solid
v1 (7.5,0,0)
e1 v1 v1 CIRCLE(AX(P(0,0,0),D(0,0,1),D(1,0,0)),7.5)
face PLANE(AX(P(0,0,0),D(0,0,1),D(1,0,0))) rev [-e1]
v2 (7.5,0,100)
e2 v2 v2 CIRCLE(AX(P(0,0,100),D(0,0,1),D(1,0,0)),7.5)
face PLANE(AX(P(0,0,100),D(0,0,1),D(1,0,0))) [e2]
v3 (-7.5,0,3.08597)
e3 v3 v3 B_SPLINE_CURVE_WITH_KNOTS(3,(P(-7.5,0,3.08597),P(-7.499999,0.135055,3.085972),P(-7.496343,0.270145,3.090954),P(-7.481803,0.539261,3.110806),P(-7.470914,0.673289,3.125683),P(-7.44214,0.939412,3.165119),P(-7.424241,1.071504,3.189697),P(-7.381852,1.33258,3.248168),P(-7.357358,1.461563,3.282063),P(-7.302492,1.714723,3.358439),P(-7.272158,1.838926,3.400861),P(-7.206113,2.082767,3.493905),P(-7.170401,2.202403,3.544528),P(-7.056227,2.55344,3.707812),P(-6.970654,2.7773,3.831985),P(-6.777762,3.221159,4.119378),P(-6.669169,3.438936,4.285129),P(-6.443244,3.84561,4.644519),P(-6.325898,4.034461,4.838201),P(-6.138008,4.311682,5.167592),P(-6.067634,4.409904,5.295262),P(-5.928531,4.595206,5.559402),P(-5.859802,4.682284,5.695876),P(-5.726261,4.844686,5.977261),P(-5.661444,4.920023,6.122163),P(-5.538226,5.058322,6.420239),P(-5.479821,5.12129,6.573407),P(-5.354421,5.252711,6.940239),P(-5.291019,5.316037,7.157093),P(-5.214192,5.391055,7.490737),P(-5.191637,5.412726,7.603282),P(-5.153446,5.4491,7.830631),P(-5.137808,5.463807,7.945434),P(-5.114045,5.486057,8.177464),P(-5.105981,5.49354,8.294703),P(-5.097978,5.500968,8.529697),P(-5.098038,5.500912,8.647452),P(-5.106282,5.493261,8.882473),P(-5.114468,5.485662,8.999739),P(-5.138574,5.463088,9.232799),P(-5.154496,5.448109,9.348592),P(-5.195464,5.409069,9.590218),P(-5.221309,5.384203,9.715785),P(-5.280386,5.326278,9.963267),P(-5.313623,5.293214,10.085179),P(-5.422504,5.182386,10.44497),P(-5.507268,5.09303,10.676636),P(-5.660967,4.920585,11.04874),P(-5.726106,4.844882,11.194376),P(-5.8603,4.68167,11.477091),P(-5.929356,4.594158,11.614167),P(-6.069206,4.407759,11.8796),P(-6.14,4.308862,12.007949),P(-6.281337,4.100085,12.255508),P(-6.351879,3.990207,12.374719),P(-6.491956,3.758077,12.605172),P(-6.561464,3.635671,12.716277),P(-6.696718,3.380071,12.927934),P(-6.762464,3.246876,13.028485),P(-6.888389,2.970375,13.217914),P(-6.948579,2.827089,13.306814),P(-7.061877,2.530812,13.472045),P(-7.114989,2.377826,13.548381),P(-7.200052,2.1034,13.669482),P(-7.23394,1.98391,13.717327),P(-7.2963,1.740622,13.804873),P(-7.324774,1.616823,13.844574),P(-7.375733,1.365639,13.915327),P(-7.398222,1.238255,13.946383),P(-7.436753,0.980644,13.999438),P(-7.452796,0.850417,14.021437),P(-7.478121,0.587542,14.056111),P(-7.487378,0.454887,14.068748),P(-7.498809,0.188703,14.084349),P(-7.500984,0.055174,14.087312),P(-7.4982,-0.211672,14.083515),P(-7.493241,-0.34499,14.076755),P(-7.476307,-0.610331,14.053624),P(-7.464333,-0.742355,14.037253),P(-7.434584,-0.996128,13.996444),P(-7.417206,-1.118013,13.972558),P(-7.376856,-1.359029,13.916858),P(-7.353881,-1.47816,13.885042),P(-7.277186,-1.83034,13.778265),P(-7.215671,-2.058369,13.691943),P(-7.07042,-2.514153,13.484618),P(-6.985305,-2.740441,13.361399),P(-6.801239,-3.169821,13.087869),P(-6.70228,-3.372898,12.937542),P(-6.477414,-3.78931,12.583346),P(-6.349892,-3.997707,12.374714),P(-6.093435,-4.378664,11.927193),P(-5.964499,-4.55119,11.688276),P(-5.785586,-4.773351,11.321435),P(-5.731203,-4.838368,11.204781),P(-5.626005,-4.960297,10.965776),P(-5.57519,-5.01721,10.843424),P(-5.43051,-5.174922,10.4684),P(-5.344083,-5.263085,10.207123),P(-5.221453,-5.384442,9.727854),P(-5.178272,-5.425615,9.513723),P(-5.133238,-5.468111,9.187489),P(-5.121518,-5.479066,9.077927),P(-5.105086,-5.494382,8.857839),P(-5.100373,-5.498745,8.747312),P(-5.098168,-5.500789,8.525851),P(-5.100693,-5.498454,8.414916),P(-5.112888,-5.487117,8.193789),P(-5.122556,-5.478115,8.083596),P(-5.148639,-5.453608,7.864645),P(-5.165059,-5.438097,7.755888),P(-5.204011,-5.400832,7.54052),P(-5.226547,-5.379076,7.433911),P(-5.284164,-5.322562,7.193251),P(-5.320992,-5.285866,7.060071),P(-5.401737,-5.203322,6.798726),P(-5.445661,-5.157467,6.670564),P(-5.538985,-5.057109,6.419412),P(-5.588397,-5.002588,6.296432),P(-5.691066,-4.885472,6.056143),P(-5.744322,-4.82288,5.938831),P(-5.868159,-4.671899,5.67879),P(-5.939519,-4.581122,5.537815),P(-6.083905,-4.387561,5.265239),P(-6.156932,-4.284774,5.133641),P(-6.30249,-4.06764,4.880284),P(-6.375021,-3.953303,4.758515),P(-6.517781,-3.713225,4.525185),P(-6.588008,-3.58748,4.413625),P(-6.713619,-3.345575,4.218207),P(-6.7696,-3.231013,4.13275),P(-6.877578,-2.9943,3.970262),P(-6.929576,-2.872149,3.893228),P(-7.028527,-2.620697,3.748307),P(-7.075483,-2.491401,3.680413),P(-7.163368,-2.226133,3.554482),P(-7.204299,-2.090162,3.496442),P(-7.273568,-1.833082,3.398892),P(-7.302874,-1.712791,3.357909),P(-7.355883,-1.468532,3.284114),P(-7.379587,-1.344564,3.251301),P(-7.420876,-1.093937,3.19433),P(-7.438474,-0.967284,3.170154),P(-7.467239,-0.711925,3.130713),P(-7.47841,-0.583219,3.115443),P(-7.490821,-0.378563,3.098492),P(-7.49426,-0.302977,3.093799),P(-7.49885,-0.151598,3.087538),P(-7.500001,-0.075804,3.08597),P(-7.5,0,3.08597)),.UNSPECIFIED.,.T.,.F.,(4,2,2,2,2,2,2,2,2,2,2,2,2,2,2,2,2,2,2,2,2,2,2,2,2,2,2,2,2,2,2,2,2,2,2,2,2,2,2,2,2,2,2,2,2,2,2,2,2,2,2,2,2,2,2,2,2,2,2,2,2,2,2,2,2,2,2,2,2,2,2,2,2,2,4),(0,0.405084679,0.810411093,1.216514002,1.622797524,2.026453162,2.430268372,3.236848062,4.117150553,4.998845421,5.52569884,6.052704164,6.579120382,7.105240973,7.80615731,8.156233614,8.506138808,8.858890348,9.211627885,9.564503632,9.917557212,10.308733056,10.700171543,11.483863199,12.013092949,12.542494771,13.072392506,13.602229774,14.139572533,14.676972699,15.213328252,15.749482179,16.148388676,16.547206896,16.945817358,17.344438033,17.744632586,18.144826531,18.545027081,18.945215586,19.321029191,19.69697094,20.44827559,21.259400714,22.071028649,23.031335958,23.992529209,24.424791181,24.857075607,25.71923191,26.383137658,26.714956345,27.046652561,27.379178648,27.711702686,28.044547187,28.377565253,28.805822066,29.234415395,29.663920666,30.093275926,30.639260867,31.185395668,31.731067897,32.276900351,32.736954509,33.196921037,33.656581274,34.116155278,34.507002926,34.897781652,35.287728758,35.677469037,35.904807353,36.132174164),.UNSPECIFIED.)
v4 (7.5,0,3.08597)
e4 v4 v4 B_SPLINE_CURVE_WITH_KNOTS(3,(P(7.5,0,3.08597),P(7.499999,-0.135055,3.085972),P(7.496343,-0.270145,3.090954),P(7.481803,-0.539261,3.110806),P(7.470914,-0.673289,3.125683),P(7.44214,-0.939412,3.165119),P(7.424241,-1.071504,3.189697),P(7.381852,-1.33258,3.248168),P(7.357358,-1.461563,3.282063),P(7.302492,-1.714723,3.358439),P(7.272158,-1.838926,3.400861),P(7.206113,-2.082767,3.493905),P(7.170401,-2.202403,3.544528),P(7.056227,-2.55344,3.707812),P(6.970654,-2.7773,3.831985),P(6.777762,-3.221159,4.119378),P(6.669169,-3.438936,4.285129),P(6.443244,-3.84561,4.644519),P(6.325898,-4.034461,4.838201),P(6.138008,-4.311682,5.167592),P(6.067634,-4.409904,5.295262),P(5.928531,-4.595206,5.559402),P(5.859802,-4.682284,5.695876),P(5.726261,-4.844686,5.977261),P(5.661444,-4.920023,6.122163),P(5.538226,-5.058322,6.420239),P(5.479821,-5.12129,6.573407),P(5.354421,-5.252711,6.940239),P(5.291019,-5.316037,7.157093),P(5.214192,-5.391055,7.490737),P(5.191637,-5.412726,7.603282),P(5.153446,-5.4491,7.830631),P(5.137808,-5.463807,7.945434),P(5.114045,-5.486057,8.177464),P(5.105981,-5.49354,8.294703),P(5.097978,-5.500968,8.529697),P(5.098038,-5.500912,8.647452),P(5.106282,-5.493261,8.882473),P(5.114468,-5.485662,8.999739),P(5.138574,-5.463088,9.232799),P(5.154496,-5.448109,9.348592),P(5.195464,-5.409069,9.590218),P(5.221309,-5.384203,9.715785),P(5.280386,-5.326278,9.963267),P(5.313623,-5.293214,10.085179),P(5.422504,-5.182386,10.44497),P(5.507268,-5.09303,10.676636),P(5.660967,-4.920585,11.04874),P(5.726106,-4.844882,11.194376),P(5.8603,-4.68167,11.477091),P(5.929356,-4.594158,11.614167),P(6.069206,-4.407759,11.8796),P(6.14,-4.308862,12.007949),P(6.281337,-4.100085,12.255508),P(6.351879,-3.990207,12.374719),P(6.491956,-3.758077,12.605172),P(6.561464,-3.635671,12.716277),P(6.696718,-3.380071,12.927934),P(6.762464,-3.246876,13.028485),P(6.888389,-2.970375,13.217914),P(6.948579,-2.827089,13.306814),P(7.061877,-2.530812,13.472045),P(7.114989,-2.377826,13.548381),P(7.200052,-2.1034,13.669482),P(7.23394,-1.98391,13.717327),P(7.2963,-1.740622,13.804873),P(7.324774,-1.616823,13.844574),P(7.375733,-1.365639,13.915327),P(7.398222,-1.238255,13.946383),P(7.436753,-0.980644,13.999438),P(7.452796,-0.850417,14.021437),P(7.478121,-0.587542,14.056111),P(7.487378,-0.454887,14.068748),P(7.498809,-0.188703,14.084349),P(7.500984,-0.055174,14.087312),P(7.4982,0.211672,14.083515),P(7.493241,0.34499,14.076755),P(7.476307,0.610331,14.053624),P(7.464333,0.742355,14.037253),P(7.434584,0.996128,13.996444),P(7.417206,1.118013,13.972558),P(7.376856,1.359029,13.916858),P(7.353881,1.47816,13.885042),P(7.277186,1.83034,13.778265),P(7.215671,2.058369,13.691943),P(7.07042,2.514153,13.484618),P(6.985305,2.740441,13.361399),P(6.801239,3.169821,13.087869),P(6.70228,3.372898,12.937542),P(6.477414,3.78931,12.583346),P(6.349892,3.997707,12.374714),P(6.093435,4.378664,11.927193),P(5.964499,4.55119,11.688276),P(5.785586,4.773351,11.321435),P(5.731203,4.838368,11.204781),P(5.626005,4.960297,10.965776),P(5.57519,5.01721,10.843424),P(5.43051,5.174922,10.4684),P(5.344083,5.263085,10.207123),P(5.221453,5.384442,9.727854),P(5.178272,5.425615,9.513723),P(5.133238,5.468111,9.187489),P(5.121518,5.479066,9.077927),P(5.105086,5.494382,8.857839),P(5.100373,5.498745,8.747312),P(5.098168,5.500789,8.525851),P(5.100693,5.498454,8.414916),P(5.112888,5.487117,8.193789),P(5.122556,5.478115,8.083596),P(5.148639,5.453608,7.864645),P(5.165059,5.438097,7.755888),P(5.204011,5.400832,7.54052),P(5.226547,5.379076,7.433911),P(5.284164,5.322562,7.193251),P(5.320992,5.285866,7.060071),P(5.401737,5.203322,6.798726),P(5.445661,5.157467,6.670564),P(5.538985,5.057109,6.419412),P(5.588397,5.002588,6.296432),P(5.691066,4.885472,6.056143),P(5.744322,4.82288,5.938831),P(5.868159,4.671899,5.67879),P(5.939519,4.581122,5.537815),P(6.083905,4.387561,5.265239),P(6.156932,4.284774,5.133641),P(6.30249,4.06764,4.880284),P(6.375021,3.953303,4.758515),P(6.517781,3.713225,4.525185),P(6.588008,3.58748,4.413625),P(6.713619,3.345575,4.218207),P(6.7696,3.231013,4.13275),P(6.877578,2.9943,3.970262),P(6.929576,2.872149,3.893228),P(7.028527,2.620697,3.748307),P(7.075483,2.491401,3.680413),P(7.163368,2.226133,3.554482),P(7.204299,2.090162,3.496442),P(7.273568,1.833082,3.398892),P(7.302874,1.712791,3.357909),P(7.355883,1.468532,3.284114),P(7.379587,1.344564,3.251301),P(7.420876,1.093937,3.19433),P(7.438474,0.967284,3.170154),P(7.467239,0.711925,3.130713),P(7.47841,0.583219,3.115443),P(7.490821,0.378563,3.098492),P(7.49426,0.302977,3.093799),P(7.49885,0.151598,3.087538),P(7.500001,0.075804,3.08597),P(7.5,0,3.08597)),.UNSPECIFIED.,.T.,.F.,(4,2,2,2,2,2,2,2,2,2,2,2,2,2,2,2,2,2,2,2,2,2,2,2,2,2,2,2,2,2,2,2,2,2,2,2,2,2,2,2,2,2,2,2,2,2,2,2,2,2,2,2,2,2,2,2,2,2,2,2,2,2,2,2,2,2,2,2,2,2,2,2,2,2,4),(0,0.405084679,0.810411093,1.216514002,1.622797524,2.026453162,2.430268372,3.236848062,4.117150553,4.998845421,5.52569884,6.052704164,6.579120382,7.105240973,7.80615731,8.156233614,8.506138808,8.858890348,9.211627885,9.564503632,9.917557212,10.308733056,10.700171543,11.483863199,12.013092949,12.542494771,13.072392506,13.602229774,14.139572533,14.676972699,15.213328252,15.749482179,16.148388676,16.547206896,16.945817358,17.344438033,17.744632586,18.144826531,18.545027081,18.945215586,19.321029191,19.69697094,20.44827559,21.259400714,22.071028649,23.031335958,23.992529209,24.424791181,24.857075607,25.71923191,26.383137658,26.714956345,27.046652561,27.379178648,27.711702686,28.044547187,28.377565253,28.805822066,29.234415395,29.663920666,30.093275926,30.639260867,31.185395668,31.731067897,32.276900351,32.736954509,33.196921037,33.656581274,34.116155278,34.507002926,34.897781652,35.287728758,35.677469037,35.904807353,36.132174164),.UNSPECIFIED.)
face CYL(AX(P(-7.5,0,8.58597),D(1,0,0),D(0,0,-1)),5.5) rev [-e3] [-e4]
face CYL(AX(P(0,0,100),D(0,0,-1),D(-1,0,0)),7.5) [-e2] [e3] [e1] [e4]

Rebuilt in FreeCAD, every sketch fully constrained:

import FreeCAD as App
import Part
import Sketcher

doc = App.newDocument("Part")
body = doc.addObject("PartDesign::Body", "Body")

# Sketch on XY plane
sketch1 = doc.addObject("Sketcher::SketchObject", "Sketch")
body.addObject(sketch1)
sketch1.AttachmentSupport = (doc.XY_Plane, [""])
sketch1.MapMode = "FlatFace"
sketch1.addGeometry(Part.Circle(App.Vector(0, 0, 0), App.Vector(0, 0, 1), 8), False)
sketch1.addConstraint([
    Sketcher.Constraint("Coincident", 0, 3, -1, 1),
    Sketcher.Constraint("Diameter", 0, 15.0),
])
pad1 = doc.addObject("PartDesign::Pad", "Pad")
body.addObject(pad1)
pad1.Profile = sketch1
pad1.Length = 100

# Sketch on YZ plane
sketch2 = doc.addObject("Sketcher::SketchObject", "Sketch001")
body.addObject(sketch2)
sketch2.AttachmentSupport = (doc.YZ_Plane, [""])
sketch2.MapMode = "FlatFace"
sketch2.addGeometry(Part.Circle(App.Vector(0, 9, 0), App.Vector(0, 0, 1), 6), False)
sketch2.addConstraint([
    Sketcher.Constraint("PointOnObject", 0, 3, -2),
    Sketcher.Constraint("Diameter", 0, 11.0),
    Sketcher.Constraint("DistanceY", -1, 1, 0, 3, 8.58597),
])
pocket1 = doc.addObject("PartDesign::Pocket", "Pocket")
body.addObject(pocket1)
pocket1.Profile = sketch2
pocket1.Type = "ThroughAll"
pocket1.Midplane = True

doc.recompute()
